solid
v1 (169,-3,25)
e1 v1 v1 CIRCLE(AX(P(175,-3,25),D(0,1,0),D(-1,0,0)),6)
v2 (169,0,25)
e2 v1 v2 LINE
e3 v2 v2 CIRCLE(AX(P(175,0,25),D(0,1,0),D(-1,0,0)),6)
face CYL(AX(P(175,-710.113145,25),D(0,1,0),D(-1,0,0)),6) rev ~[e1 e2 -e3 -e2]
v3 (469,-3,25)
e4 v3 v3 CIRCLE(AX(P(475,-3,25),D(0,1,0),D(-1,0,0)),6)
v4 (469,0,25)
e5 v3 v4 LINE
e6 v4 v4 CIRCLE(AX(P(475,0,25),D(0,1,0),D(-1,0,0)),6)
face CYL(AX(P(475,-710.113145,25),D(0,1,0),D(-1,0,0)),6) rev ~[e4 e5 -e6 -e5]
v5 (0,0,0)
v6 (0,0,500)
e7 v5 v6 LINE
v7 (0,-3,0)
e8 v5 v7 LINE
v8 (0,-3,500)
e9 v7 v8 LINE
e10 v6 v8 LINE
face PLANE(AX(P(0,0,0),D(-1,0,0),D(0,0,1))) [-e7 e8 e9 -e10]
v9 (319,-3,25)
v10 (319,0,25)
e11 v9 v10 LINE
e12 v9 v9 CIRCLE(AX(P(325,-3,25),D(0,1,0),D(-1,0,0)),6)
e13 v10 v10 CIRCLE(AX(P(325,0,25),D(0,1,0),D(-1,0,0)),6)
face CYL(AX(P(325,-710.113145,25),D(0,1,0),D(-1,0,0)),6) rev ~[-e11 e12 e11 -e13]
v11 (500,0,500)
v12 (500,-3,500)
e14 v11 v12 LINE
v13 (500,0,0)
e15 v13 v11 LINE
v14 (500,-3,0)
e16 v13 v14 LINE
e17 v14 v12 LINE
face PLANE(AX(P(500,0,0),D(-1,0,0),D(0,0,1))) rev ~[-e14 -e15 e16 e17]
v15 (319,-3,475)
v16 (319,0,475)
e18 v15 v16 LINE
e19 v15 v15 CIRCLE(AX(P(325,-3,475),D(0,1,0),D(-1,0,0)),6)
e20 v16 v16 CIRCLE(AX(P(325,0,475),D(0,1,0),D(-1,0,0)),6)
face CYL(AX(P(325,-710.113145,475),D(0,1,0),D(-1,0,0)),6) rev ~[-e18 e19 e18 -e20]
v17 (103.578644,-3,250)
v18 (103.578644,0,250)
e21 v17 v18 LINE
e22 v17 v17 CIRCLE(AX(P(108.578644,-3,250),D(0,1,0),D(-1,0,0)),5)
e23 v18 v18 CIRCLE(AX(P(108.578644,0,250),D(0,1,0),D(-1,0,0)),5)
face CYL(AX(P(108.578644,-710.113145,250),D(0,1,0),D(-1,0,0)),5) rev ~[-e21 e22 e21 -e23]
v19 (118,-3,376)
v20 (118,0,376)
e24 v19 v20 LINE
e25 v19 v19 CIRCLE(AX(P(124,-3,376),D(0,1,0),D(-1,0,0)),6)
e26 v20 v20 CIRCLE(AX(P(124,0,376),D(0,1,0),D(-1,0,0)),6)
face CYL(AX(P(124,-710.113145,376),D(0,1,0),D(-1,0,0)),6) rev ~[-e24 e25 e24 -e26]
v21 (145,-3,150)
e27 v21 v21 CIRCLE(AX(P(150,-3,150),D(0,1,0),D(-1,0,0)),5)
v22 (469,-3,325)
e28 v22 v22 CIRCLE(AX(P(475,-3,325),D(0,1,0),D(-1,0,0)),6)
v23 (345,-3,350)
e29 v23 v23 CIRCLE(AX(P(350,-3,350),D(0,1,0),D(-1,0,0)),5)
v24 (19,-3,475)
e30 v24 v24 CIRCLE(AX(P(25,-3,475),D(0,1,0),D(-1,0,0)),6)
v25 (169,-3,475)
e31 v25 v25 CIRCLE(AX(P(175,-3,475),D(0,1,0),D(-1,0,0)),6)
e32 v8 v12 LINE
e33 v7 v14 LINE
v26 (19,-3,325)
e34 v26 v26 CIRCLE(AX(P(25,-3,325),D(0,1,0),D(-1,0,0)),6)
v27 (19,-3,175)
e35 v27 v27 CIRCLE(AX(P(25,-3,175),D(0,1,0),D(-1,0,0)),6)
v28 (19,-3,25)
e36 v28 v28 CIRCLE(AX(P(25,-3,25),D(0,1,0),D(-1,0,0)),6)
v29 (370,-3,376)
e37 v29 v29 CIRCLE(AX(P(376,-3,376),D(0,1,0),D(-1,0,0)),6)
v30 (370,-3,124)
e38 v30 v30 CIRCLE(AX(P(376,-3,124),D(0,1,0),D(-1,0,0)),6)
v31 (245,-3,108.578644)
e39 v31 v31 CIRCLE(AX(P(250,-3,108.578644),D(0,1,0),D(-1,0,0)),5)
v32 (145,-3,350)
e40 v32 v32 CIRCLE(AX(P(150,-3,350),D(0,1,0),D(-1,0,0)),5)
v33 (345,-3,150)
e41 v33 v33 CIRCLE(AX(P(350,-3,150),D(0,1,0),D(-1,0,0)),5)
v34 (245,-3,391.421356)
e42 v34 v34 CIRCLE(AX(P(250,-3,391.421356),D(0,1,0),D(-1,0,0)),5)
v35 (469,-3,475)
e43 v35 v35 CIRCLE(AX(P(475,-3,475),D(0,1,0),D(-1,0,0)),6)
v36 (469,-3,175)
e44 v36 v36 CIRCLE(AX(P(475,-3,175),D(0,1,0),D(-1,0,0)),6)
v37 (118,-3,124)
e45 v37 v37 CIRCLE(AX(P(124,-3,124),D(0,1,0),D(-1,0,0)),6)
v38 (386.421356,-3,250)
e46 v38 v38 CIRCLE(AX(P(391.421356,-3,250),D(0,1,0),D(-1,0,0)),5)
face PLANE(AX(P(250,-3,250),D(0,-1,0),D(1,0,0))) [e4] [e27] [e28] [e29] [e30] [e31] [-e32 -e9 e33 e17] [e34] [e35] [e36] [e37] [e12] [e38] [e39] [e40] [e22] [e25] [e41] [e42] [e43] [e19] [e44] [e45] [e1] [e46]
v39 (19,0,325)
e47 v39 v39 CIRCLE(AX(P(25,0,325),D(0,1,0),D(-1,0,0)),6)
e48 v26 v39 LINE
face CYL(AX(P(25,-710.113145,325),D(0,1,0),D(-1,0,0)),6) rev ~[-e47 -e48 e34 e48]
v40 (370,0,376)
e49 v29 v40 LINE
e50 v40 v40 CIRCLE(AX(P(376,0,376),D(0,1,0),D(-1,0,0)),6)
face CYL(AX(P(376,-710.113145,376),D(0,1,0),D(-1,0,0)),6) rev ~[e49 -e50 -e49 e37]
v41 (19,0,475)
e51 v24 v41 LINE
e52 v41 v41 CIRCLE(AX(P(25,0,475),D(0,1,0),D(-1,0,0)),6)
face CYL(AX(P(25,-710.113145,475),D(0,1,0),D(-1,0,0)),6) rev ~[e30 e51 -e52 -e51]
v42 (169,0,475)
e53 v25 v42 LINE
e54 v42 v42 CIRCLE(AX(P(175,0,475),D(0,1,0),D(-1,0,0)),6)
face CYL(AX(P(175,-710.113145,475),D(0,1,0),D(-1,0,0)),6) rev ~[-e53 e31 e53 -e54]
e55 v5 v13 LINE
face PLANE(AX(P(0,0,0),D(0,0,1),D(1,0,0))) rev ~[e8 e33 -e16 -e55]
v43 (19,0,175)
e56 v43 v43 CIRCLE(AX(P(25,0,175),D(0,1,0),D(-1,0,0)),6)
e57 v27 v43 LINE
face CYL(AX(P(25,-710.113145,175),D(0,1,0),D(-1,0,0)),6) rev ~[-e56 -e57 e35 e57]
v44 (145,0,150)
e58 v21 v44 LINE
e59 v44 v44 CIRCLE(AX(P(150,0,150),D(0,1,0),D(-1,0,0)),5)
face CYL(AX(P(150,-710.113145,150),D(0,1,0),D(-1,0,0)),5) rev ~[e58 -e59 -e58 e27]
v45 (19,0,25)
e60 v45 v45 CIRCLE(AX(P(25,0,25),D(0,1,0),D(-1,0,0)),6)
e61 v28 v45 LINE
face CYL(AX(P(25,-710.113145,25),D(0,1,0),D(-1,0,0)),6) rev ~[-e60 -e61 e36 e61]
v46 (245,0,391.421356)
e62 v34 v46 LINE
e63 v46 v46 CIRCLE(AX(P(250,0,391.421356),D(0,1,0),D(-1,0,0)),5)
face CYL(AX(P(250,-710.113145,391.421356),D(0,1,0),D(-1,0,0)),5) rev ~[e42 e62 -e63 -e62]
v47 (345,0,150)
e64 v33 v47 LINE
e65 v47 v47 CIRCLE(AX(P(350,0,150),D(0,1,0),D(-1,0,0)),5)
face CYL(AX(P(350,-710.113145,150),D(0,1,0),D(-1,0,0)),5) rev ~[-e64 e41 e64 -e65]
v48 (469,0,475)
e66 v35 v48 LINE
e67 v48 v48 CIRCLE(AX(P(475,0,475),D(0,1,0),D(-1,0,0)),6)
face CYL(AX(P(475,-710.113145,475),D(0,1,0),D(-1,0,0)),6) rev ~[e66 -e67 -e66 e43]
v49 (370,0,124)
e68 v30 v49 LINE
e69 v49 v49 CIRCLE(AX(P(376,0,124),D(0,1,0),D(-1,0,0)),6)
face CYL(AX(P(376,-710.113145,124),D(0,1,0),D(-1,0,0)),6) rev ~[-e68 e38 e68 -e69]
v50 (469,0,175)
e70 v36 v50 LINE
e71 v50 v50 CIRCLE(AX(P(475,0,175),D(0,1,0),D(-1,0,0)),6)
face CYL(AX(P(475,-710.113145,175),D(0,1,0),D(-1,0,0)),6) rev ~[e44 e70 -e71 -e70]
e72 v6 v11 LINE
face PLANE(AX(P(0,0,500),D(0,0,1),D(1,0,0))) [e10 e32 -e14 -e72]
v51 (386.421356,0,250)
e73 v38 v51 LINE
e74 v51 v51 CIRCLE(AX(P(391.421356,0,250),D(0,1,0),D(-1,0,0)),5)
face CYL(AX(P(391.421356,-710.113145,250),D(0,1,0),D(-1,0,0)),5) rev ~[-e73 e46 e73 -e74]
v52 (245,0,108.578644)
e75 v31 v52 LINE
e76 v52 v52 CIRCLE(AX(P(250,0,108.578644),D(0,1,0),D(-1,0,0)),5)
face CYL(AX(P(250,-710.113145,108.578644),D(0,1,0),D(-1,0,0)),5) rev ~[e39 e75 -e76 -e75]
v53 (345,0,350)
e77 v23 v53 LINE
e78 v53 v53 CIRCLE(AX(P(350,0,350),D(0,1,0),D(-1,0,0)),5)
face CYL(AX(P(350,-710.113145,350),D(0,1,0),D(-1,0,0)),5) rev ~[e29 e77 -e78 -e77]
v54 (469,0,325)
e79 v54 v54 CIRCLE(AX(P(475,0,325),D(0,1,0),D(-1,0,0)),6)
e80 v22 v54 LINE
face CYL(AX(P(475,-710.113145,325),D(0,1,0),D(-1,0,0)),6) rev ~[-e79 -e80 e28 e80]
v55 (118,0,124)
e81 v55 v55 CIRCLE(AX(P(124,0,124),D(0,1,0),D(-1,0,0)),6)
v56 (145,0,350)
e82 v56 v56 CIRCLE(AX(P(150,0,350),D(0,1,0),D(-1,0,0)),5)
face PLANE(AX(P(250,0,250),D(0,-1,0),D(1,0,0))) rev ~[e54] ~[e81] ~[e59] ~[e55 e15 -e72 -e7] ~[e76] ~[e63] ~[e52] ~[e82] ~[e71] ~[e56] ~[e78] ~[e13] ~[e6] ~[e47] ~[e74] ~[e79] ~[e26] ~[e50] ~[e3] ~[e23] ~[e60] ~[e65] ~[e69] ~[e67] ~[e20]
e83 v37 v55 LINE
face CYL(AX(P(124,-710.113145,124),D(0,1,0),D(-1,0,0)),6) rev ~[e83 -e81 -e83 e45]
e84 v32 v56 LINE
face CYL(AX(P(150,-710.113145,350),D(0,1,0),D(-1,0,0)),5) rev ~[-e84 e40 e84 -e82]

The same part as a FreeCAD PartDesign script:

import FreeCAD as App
import Part
import Sketcher

doc = App.newDocument("Part")
body = doc.addObject("PartDesign::Body", "Body")

sketch1 = doc.addObject("Sketcher::SketchObject", "Sketch")
body.addObject(sketch1)
sketch1.AttachmentSupport = (doc.XZ_Plane, [""])
sketch1.MapMode = "FlatFace"
sketch1.addGeometry([
    Part.LineSegment(App.Vector(0, 500, 0), App.Vector(0, 0, 0)),
    Part.LineSegment(App.Vector(0, 0, 0), App.Vector(500, 0, 0)),
    Part.LineSegment(App.Vector(500, 0, 0), App.Vector(500, 500, 0)),
    Part.LineSegment(App.Vector(500, 500, 0), App.Vector(0, 500, 0)),
], False)
sketch1.addConstraint([
    Sketcher.Constraint("Coincident", 0, 2, 1, 1),
    Sketcher.Constraint("Coincident", 1, 2, 2, 1),
    Sketcher.Constraint("Coincident", 2, 2, 3, 1),
    Sketcher.Constraint("Coincident", 3, 2, 0, 1),
    Sketcher.Constraint("Vertical", 0),
    Sketcher.Constraint("Horizontal", 1),
    Sketcher.Constraint("Vertical", 2),
    Sketcher.Constraint("Horizontal", 3),
    Sketcher.Constraint("Coincident", 0, 2, -1, 1),
    Sketcher.Constraint("Equal", 3, 0),
    Sketcher.Constraint("DistanceX", 1, 1, 1, 2, 500.0),
])
pad1 = doc.addObject("PartDesign::Pad", "Pad")
body.addObject(pad1)
pad1.Profile = sketch1
pad1.Length = 3

sketch2 = doc.addObject("Sketcher::SketchObject", "Sketch001")
body.addObject(sketch2)
sketch2.AttachmentSupport = (doc.XZ_Plane, [""])
sketch2.MapMode = "FlatFace"
sketch2.AttachmentOffset = App.Placement(App.Vector(0, 0, 3), App.Rotation())
sketch2.addGeometry([
    Part.Circle(App.Vector(150, 350, 0), App.Vector(0, 0, 1), 5),
    Part.Circle(App.Vector(250, 391, 0), App.Vector(0, 0, 1), 5),
    Part.Circle(App.Vector(350, 350, 0), App.Vector(0, 0, 1), 5),
    Part.Circle(App.Vector(391, 250, 0), App.Vector(0, 0, 1), 5),
    Part.Circle(App.Vector(350, 150, 0), App.Vector(0, 0, 1), 5),
    Part.Circle(App.Vector(250, 109, 0), App.Vector(0, 0, 1), 5),
    Part.Circle(App.Vector(150, 150, 0), App.Vector(0, 0, 1), 5),
    Part.Circle(App.Vector(109, 250, 0), App.Vector(0, 0, 1), 5),
], False)
sketch2.addConstraint([
    Sketcher.Constraint("Equal", 0, 1),
    Sketcher.Constraint("Equal", 1, 2),
    Sketcher.Constraint("Equal", 2, 3),
    Sketcher.Constraint("Equal", 3, 4),
    Sketcher.Constraint("Equal", 4, 5),
    Sketcher.Constraint("Equal", 5, 6),
    Sketcher.Constraint("Equal", 6, 7),
    Sketcher.Constraint("Horizontal", 0, 3, 2, 3),
    Sketcher.Constraint("Horizontal", 4, 3, 6, 3),
    Sketcher.Constraint("Horizontal", 3, 3, 7, 3),
    Sketcher.Constraint("Vertical", 2, 3, 4, 3),
    Sketcher.Constraint("Vertical", 1, 3, 5, 3),
    Sketcher.Constraint("Vertical", 0, 3, 6, 3),
    Sketcher.Constraint("Diameter", 0, 10.0),
    Sketcher.Constraint("DistanceX", -1, 1, 0, 3, 150.0),
    Sketcher.Constraint("DistanceY", -1, 1, 0, 3, 350.0),
    Sketcher.Constraint("DistanceX", -1, 1, 1, 3, 250.0),
    Sketcher.Constraint("DistanceX", -1, 1, 2, 3, 350.0),
    Sketcher.Constraint("DistanceY", -1, 1, 3, 3, 250.0),
    Sketcher.Constraint("DistanceY", -1, 1, 4, 3, 150.0),
    Sketcher.Constraint("DistanceY", 5, 3, 1, 3, 282.842712),
    Sketcher.Constraint("DistanceY", -1, 1, 1, 3, 391.421356),
    Sketcher.Constraint("DistanceX", -1, 1, 3, 3, 391.421356),
    Sketcher.Constraint("DistanceX", -1, 1, 7, 3, 108.578644),
])
doc.recompute()
hole = doc.addObject("PartDesign::Hole", "Hole")
body.addObject(hole)
hole.Profile = sketch2
hole.ThreadType = "None"
hole.Diameter = 10
hole.DepthType = "ThroughAll"

sketch3 = doc.addObject("Sketcher::SketchObject", "Sketch002")
body.addObject(sketch3)
sketch3.AttachmentSupport = (doc.XZ_Plane, [""])
sketch3.MapMode = "FlatFace"
sketch3.AttachmentOffset = App.Placement(App.Vector(0, 0, 3), App.Rotation())
sketch3.addGeometry([
    Part.Circle(App.Vector(25, 325, 0), App.Vector(0, 0, 1), 6),
    Part.Circle(App.Vector(25, 475, 0), App.Vector(0, 0, 1), 6),
    Part.Circle(App.Vector(175, 475, 0), App.Vector(0, 0, 1), 6),
    Part.Circle(App.Vector(325, 475, 0), App.Vector(0, 0, 1), 6),
    Part.Circle(App.Vector(475, 475, 0), App.Vector(0, 0, 1), 6),
    Part.Circle(App.Vector(475, 325, 0), App.Vector(0, 0, 1), 6),
    Part.Circle(App.Vector(475, 175, 0), App.Vector(0, 0, 1), 6),
    Part.Circle(App.Vector(475, 25, 0), App.Vector(0, 0, 1), 6),
    Part.Circle(App.Vector(325, 25, 0), App.Vector(0, 0, 1), 6),
    Part.Circle(App.Vector(175, 25, 0), App.Vector(0, 0, 1), 6),
    Part.Circle(App.Vector(25, 25, 0), App.Vector(0, 0, 1), 6),
    Part.Circle(App.Vector(25, 175, 0), App.Vector(0, 0, 1), 6),
], False)
sketch3.addConstraint([
    Sketcher.Constraint("Equal", 0, 1),
    Sketcher.Constraint("Equal", 1, 2),
    Sketcher.Constraint("Equal", 2, 3),
    Sketcher.Constraint("Equal", 3, 4),
    Sketcher.Constraint("Equal", 4, 5),
    Sketcher.Constraint("Equal", 5, 6),
    Sketcher.Constraint("Equal", 6, 7),
    Sketcher.Constraint("Equal", 7, 8),
    Sketcher.Constraint("Equal", 8, 9),
    Sketcher.Constraint("Equal", 9, 10),
    Sketcher.Constraint("Equal", 10, 11),
    Sketcher.Constraint("Horizontal", 1, 3, 2, 3),
    Sketcher.Constraint("Horizontal", 2, 3, 3, 3),
    Sketcher.Constraint("Horizontal", 3, 3, 4, 3),
    Sketcher.Constraint("Horizontal", 0, 3, 5, 3),
    Sketcher.Constraint("Horizontal", 7, 3, 8, 3),
    Sketcher.Constraint("Horizontal", 8, 3, 9, 3),
    Sketcher.Constraint("Horizontal", 9, 3, 10, 3),
    Sketcher.Constraint("Horizontal", 6, 3, 11, 3),
    Sketcher.Constraint("Vertical", 0, 3, 1, 3),
    Sketcher.Constraint("Vertical", 4, 3, 5, 3),
    Sketcher.Constraint("Vertical", 5, 3, 6, 3),
    Sketcher.Constraint("Vertical", 6, 3, 7, 3),
    Sketcher.Constraint("Vertical", 3, 3, 8, 3),
    Sketcher.Constraint("Vertical", 2, 3, 9, 3),
    Sketcher.Constraint("Vertical", 1, 3, 10, 3),
    Sketcher.Constraint("Vertical", 10, 3, 11, 3),
    Sketcher.Constraint("Diameter", 0, 12.0),
    Sketcher.Constraint("DistanceX", -1, 1, 0, 3, 25.0),
    Sketcher.Constraint("DistanceY", -1, 1, 0, 3, 325.0),
    Sketcher.Constraint("DistanceY", -1, 1, 1, 3, 475.0),
    Sketcher.Constraint("DistanceX", -1, 1, 2, 3, 175.0),
    Sketcher.Constraint("DistanceX", -1, 1, 3, 3, 325.0),
    Sketcher.Constraint("DistanceX", -1, 1, 4, 3, 475.0),
    Sketcher.Constraint("DistanceY", -1, 1, 6, 3, 175.0),
    Sketcher.Constraint("DistanceY", -1, 1, 7, 3, 25.0),
])
doc.recompute()
hole2 = doc.addObject("PartDesign::Hole", "Hole001")
body.addObject(hole2)
hole2.Profile = sketch3
hole2.ThreadType = "None"
hole2.Diameter = 12
hole2.DepthType = "ThroughAll"

sketch4 = doc.addObject("Sketcher::SketchObject", "Sketch003")
body.addObject(sketch4)
sketch4.AttachmentSupport = (doc.XZ_Plane, [""])
sketch4.MapMode = "FlatFace"
sketch4.AttachmentOffset = App.Placement(App.Vector(0, 0, 3), App.Rotation())
sketch4.addGeometry([
    Part.Circle(App.Vector(124, 376, 0), App.Vector(0, 0, 1), 6),
    Part.Circle(App.Vector(376, 376, 0), App.Vector(0, 0, 1), 6),
    Part.Circle(App.Vector(376, 124, 0), App.Vector(0, 0, 1), 6),
    Part.Circle(App.Vector(124, 124, 0), App.Vector(0, 0, 1), 6),
], False)
sketch4.addConstraint([
    Sketcher.Constraint("Equal", 0, 1),
    Sketcher.Constraint("Equal", 1, 2),
    Sketcher.Constraint("Equal", 2, 3),
    Sketcher.Constraint("Horizontal", 0, 3, 1, 3),
    Sketcher.Constraint("Horizontal", 2, 3, 3, 3),
    Sketcher.Constraint("Vertical", 1, 3, 2, 3),
    Sketcher.Constraint("Vertical", 0, 3, 3, 3),
    Sketcher.Constraint("Diameter", 0, 12.0),
    Sketcher.Constraint("DistanceX", -1, 1, 0, 3, 124.0),
    Sketcher.Constraint("DistanceY", -1, 1, 0, 3, 376.0),
    Sketcher.Constraint("DistanceX", -1, 1, 1, 3, 376.0),
    Sketcher.Constraint("DistanceY", -1, 1, 2, 3, 124.0),
])
doc.recompute()
hole3 = doc.addObject("PartDesign::Hole", "Hole002")
body.addObject(hole3)
hole3.Profile = sketch4
hole3.ThreadType = "None"
hole3.Diameter = 12
hole3.DepthType = "ThroughAll"

doc.recompute()
